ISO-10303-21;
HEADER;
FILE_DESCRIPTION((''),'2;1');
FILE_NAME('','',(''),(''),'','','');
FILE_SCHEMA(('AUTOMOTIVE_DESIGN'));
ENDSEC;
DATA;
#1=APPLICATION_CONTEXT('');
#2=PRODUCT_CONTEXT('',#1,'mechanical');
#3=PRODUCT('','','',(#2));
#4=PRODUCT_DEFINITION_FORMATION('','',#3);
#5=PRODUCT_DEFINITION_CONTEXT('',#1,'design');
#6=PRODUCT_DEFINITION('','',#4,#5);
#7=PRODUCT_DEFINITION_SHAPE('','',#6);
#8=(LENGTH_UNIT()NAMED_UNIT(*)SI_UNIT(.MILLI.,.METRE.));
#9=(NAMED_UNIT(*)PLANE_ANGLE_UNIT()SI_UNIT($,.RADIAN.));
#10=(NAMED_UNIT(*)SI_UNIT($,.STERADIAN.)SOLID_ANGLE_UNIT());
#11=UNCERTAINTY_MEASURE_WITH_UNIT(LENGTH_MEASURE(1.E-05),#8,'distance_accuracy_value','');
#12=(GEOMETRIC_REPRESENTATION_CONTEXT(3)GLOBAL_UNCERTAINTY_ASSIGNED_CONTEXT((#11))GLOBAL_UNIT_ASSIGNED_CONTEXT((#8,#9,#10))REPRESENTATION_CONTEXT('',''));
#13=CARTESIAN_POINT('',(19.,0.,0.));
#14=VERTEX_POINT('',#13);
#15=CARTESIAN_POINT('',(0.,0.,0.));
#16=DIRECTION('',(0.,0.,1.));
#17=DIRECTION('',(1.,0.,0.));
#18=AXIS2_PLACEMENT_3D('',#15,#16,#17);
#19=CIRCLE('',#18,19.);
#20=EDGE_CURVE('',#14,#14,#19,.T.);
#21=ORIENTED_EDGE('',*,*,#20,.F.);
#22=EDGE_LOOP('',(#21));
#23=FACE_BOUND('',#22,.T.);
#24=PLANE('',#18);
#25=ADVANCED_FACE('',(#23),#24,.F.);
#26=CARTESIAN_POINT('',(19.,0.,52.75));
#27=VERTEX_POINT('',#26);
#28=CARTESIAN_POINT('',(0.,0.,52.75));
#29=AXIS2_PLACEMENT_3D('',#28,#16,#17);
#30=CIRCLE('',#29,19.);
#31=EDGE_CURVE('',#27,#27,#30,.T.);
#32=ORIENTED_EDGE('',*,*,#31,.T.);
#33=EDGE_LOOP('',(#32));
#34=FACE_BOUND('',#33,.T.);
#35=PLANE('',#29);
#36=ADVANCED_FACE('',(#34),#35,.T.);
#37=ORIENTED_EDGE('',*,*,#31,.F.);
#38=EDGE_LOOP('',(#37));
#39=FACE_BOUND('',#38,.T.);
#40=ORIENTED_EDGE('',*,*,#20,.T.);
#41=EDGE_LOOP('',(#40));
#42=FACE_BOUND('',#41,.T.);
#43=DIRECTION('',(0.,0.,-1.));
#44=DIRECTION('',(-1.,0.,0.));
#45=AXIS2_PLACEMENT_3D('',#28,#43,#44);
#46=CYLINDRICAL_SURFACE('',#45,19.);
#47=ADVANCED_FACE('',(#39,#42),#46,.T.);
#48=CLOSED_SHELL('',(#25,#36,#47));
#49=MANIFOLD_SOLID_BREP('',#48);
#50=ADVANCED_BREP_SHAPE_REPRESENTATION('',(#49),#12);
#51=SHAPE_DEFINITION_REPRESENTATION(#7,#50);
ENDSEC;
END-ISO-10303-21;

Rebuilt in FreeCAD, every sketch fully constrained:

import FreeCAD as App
import Part
import Sketcher

V = App.Vector

doc = App.newDocument("Part")
params = doc.addObject("Spreadsheet::Sheet", "Params")
for row, (alias, value) in enumerate([
    ("sketch1_diameter", "38 mm"),
    ("pad1_length", "52.75 mm"),
], start=1):
    params.set(f"A{row}", alias)
    params.set(f"B{row}", "=" + value)
    params.setAlias(f"B{row}", alias)

body = doc.addObject("PartDesign::Body", "Body")

sketch1 = body.newObject("Sketcher::SketchObject", "Sketch")
sketch1.AttachmentSupport = (doc.getObject("XY_Plane"), [""])
sketch1.MapMode = "FlatFace"
sketch1.addGeometry(Part.Circle(V(0, 0, 0), V(0, 0, 1), 19), False)
sketch1.addConstraint([
    Sketcher.Constraint("Coincident", 0, 3, -1, 1),
    Sketcher.Constraint("Diameter", 0, 38.0),
])
sketch1.setExpression("Constraints[1]", "Params.sketch1_diameter")
pad1 = body.newObject("PartDesign::Pad", "Pad")
pad1.Profile = sketch1
pad1.setExpression("Length", "Params.pad1_length")

doc.recompute()
